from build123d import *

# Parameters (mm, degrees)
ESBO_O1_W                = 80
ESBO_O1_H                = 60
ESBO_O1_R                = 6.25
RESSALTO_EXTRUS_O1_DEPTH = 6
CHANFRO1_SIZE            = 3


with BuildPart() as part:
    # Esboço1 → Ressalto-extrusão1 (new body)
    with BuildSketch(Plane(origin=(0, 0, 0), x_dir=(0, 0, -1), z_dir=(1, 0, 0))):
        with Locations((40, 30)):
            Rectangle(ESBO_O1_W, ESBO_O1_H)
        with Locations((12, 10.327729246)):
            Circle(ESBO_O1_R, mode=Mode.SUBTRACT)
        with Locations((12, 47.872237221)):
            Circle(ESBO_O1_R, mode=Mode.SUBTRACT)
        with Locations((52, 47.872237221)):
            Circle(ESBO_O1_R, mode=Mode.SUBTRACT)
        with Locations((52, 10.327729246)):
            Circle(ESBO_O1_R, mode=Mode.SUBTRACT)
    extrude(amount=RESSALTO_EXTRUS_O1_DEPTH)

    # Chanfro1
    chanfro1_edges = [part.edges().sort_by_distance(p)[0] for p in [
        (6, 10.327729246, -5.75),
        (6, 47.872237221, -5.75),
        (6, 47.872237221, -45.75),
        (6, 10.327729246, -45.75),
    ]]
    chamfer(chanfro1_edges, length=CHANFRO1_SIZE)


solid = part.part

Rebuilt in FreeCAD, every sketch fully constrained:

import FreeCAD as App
import Part
import Sketcher
from FreeCAD import Vector
Q = App.Units.Quantity


def edges_at(feature, points):
    """Names of the edges that pass closest to the given points."""
    edges = feature.Shape.Edges
    near = lambda p: min(range(len(edges)), key=lambda i: edges[i].distToShape(Part.Vertex(*p))[0])
    return sorted({f"Edge{near(p) + 1}" for p in points})


def add_polygon(sketch, points):
    """Adds a closed chain of lines whose ends are joined by coincident constraints."""
    first, n = sketch.GeometryCount, len(points)
    for a, b in zip(points, points[1:] + points[:1]):
        sketch.addGeometry(Part.LineSegment(App.Vector(*a, 0), App.Vector(*b, 0)), False)
    for i in range(n):
        sketch.addConstraint(Sketcher.Constraint("Coincident", first + i, 2, first + (i + 1) % n, 1))

doc = App.newDocument("Part")
params = doc.addObject("Spreadsheet::Sheet", "Params")
for row, (alias, value) in enumerate([
    ("sketch1_diameter", "12.5 mm"),
    ("sketch1_width", "60 mm"),
    ("sketch1_height", "80 mm"),
    ("pad1_length", "6 mm"),
    ("chamfer_size", "3 mm"),
], start=1):
    params.set(f"A{row}", alias)
    params.set(f"B{row}", "=" + value)
    params.setAlias(f"B{row}", alias)

body = doc.addObject("PartDesign::Body", "Body")

# Sketch on YZ plane
sketch1 = body.newObject("Sketcher::SketchObject", "Sketch")
sketch1.AttachmentSupport = (doc.getObject("YZ_Plane"), [""])
sketch1.MapMode = "FlatFace"
add_polygon(sketch1, [(60, 0), (0, 0), (0, -80), (60, -80)])  # lines 0-3
sketch1.addGeometry(Part.Circle(Vector(10, -12, 0), Vector(0, 0, 1), 6), False)  # 4
sketch1.addGeometry(Part.Circle(Vector(10, -52, 0), Vector(0, 0, 1), 6), False)  # 5
sketch1.addGeometry(Part.Circle(Vector(48, -12, 0), Vector(0, 0, 1), 6), False)  # 6
sketch1.addGeometry(Part.Circle(Vector(48, -52, 0), Vector(0, 0, 1), 6), False)  # 7
sketch1.addConstraint([
    Sketcher.Constraint("Horizontal", 0),
    Sketcher.Constraint("Vertical", 1),
    Sketcher.Constraint("Horizontal", 2),
    Sketcher.Constraint("Vertical", 3),
    Sketcher.Constraint("Coincident", 0, 2, -1, 1),
    Sketcher.Constraint("Equal", 4, 5),
    Sketcher.Constraint("Equal", 5, 6),
    Sketcher.Constraint("Equal", 6, 7),
    Sketcher.Constraint("Horizontal", 4, 3, 6, 3),
    Sketcher.Constraint("Horizontal", 5, 3, 7, 3),
    Sketcher.Constraint("Vertical", 4, 3, 5, 3),
    Sketcher.Constraint("Vertical", 6, 3, 7, 3),
    Sketcher.Constraint("Diameter", 4, Q("12.5 mm")),
    Sketcher.Constraint("DistanceX", 0, 2, 0, 1, Q("60 mm")),
    Sketcher.Constraint("DistanceY", 1, 2, 1, 1, Q("80 mm")),
    Sketcher.Constraint("DistanceY", 4, 3, -1, 1, Q("12 mm")),
    Sketcher.Constraint("DistanceY", 5, 3, -1, 1, Q("52 mm")),
    Sketcher.Constraint("DistanceX", -1, 1, 4, 3, Q("10.327729 mm")),
    Sketcher.Constraint("DistanceX", -1, 1, 6, 3, Q("47.872237 mm")),
])
sketch1.setExpression("Constraints[16]", "Params.sketch1_diameter")
sketch1.setExpression("Constraints[17]", "Params.sketch1_width")
sketch1.setExpression("Constraints[18]", "Params.sketch1_height")
pad1 = body.newObject("PartDesign::Pad", "Pad")
pad1.Profile = sketch1
pad1.setExpression("Length", "Params.pad1_length")
doc.recompute()

chamfer = body.newObject("PartDesign::Chamfer", "Chamfer")
chamfer.Base = (pad1, edges_at(pad1, [
    (6, 10.328, -5.75),
    (6, 47.872, -5.75),
    (6, 47.872, -45.75),
    (6, 10.328, -45.75),
]))
chamfer.setExpression("Size", "Params.chamfer_size")

doc.recompute()
